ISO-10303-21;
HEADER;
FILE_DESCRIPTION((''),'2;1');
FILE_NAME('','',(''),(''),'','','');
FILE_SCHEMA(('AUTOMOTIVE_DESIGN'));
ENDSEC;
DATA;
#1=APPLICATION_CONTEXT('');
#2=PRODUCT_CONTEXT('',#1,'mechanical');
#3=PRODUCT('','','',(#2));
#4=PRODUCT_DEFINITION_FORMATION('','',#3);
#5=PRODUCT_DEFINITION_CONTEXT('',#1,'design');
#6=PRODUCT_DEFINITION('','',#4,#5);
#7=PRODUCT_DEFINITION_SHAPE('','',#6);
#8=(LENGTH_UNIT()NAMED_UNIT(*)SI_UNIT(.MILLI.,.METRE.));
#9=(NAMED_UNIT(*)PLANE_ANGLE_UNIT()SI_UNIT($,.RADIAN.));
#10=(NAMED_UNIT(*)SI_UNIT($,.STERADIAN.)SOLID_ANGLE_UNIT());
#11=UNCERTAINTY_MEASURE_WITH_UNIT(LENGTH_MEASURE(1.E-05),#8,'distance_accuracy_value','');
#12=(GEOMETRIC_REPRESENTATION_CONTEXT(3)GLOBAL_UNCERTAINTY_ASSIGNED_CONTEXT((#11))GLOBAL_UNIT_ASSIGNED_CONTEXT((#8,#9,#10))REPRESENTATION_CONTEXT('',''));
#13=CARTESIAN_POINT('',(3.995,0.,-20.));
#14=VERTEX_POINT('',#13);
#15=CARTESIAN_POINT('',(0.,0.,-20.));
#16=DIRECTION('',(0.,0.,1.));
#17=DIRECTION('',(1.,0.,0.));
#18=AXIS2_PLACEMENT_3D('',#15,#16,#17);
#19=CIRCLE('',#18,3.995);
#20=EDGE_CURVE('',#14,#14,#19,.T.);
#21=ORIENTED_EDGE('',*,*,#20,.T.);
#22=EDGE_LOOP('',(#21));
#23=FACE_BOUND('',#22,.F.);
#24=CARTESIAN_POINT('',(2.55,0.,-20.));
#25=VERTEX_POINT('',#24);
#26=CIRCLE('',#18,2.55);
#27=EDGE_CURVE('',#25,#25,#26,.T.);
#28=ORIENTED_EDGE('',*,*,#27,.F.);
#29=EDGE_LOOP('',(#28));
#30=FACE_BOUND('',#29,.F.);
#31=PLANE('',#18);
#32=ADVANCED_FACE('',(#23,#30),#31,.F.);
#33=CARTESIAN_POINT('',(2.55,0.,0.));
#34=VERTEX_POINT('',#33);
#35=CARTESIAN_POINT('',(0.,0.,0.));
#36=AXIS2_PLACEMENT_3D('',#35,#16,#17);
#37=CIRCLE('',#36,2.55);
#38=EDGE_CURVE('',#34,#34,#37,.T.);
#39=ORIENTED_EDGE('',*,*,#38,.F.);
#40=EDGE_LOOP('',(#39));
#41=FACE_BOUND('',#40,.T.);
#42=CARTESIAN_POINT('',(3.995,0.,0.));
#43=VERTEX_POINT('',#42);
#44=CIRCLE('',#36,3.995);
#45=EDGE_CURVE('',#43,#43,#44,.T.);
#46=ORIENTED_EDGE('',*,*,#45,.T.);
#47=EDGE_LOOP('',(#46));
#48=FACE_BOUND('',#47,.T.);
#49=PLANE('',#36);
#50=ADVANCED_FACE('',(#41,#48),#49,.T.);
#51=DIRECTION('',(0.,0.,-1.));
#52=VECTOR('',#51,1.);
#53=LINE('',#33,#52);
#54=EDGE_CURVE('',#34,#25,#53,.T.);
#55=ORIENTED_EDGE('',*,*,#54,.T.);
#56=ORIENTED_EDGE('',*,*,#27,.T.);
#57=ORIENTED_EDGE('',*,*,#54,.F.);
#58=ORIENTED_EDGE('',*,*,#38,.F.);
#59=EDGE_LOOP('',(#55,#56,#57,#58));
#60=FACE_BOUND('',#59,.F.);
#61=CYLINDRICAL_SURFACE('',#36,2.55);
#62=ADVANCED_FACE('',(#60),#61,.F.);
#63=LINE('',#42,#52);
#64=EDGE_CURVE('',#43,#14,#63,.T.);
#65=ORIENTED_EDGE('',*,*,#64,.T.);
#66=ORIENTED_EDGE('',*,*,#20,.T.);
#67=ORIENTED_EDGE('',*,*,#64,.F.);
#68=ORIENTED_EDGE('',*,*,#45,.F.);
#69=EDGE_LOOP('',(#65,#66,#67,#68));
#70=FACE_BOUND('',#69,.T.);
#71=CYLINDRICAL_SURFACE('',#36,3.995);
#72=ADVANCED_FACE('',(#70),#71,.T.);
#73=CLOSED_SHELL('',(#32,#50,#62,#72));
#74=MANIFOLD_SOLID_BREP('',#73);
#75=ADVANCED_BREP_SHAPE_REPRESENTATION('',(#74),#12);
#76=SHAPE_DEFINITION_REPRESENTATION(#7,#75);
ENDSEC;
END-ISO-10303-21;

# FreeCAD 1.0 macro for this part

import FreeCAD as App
import Part
import Sketcher

V = App.Vector

doc = App.newDocument("Part")
body = doc.addObject("PartDesign::Body", "Body")

# Sketch on XY plane
sketch1 = body.newObject("Sketcher::SketchObject", "Sketch")
sketch1.AttachmentSupport = (doc.getObject("XY_Plane"), [""])
sketch1.MapMode = "FlatFace"
sketch1.addGeometry([
    Part.Circle(V(0, 0, 0), V(0, 0, 1), 4),
    Part.Circle(V(0, 0, 0), V(0, 0, 1), 2.5),
], False)
sketch1.addConstraint([
    Sketcher.Constraint("Coincident", 0, 3, -1, 1),
    Sketcher.Constraint("Coincident", 1, 3, -1, 1),
    Sketcher.Constraint("Diameter", 1, 5.1),
    Sketcher.Constraint("Diameter", 0, 7.99),
])
pad1 = body.newObject("PartDesign::Pad", "Pad")
pad1.Profile = sketch1
pad1.Length = 20
pad1.Reversed = True

doc.recompute()
